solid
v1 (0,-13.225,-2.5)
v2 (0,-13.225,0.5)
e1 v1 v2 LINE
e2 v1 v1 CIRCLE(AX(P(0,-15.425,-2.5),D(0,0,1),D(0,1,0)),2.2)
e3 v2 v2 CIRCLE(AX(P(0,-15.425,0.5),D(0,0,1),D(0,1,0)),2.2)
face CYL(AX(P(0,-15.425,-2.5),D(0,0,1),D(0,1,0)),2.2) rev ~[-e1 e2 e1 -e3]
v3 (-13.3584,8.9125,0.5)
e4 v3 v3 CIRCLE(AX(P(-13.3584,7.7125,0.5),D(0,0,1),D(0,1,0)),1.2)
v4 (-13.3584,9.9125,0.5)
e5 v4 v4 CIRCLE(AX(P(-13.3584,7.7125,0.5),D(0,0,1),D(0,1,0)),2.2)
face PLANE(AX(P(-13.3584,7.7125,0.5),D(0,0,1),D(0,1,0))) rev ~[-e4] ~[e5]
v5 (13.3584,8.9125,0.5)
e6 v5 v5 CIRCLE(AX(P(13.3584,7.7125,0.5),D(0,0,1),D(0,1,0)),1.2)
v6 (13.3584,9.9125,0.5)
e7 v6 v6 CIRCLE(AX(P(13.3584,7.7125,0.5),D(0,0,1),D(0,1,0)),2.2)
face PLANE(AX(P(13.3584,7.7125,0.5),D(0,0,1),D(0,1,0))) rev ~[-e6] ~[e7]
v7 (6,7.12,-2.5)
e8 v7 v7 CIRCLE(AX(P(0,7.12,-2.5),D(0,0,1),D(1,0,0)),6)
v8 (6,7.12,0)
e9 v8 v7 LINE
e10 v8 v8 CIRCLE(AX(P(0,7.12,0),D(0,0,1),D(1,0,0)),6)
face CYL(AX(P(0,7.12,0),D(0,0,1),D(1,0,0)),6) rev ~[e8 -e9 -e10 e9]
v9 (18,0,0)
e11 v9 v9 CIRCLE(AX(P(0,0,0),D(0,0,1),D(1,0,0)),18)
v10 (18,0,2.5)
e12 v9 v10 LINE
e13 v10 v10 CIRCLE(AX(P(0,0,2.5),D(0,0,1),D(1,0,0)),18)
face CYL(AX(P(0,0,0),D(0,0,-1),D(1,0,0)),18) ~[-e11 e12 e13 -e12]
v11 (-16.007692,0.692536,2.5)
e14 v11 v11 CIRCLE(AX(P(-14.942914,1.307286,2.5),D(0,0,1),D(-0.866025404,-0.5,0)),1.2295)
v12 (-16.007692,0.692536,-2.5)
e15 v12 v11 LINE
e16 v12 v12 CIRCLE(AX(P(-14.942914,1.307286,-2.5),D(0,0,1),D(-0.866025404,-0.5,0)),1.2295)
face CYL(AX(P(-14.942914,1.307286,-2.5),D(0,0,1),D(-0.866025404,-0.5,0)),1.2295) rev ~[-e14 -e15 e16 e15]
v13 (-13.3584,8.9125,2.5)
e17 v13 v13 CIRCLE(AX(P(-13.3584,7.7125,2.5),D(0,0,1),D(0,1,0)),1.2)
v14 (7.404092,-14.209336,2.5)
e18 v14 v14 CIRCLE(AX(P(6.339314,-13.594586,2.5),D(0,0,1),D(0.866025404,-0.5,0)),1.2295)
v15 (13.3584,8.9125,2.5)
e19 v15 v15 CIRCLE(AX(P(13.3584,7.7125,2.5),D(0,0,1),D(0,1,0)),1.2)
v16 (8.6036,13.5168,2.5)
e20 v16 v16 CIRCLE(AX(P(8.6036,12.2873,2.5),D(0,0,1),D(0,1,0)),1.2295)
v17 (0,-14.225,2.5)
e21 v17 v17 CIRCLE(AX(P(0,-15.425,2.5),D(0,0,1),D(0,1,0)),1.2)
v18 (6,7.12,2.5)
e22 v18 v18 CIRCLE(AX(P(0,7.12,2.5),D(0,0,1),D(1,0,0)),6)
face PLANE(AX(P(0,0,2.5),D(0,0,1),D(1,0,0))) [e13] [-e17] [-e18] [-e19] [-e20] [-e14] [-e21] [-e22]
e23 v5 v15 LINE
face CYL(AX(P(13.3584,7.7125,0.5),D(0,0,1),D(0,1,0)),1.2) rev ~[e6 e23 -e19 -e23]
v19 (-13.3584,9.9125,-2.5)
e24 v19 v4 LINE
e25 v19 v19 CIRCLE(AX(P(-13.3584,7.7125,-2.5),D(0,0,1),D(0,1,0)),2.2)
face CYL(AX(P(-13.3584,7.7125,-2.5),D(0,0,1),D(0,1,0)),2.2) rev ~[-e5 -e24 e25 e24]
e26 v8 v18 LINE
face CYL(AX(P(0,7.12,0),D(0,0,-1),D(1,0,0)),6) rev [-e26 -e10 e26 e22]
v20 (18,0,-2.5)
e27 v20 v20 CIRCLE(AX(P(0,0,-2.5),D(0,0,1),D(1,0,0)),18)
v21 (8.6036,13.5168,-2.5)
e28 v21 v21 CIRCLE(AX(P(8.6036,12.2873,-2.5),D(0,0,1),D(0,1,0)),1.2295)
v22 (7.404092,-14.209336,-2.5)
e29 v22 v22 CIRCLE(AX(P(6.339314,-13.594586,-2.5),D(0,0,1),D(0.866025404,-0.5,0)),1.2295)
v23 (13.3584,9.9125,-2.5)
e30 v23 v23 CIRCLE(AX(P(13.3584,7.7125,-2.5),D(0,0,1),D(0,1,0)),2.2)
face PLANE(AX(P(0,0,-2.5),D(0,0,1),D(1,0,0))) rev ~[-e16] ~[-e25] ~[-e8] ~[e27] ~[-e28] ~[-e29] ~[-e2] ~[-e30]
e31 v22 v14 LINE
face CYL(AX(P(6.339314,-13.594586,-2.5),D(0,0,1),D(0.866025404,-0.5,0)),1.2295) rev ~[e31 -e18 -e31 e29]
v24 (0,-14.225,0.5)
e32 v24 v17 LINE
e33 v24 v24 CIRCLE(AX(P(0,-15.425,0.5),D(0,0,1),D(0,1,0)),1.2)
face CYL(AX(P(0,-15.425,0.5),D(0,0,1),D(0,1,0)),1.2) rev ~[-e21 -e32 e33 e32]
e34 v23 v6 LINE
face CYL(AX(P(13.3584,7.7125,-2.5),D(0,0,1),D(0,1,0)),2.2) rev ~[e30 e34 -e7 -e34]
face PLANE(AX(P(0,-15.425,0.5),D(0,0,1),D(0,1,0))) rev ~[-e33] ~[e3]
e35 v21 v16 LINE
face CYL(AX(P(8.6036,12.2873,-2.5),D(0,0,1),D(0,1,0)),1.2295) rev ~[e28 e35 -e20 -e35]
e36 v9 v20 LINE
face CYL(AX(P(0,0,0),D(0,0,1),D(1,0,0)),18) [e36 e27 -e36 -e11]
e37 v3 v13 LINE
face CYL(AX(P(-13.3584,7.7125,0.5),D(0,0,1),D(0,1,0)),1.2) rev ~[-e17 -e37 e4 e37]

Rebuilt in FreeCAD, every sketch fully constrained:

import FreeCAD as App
import Part
import Sketcher

doc = App.newDocument("Part")
params = doc.addObject("Spreadsheet::Sheet", "Params")
for row, (alias, value) in enumerate([
    ("sketch1_diameter", "36 mm"),
    ("sketch1_diameter2", "12 mm"),
    ("pad1_length", "5 mm"),
    ("sketch2_diameter", "2.4 mm"),
    ("hole_diameter", "2.4 mm"),
    ("hole_cbore_diameter", "4.4 mm"),
    ("hole_cbore_depth", "3 mm"),
    ("hole2_diameter", "2.459 mm"),
], start=1):
    params.set(f"A{row}", alias)
    params.set(f"B{row}", "=" + value)
    params.setAlias(f"B{row}", alias)

body = doc.addObject("PartDesign::Body", "Body")

# Sketch on XY plane
sketch1 = body.newObject("Sketcher::SketchObject", "Sketch")
sketch1.AttachmentSupport = (doc.getObject("XY_Plane"), [""])
sketch1.MapMode = "FlatFace"
sketch1.addGeometry(Part.Circle(App.Vector(0, 0, 0), App.Vector(0, 0, 1), 18), False)
sketch1.addGeometry(Part.Circle(App.Vector(0, 7, 0), App.Vector(0, 0, 1), 6), False)
sketch1.addConstraint(Sketcher.Constraint("Coincident", 0, 3, -1, 1))
sketch1.addConstraint(Sketcher.Constraint("PointOnObject", 1, 3, -2))
sketch1.addConstraint(Sketcher.Constraint("Diameter", 0, 36.0))
sketch1.addConstraint(Sketcher.Constraint("Diameter", 1, 12.0))
sketch1.addConstraint(Sketcher.Constraint("DistanceY", -1, 1, 1, 3, 7.12))
sketch1.setExpression("Constraints[2]", "Params.sketch1_diameter")
sketch1.setExpression("Constraints[3]", "Params.sketch1_diameter2")
pad1 = body.newObject("PartDesign::Pad", "Pad")
pad1.Profile = sketch1
pad1.setExpression("Length", "Params.pad1_length")
pad1.Midplane = True

# Sketch on XY plane
sketch2 = body.newObject("Sketcher::SketchObject", "Sketch001")
sketch2.AttachmentSupport = (doc.getObject("XY_Plane"), [""])
sketch2.MapMode = "FlatFace"
sketch2.AttachmentOffset = App.Placement(App.Vector(0, 0, -2.5), App.Rotation())
sketch2.addGeometry(Part.Circle(App.Vector(0, -15.4, 0), App.Vector(0, 0, 1), 1.2), False)
sketch2.addGeometry(Part.Circle(App.Vector(-13.4, 7.7, 0), App.Vector(0, 0, 1), 1.2), False)
sketch2.addGeometry(Part.Circle(App.Vector(13.4, 7.7, 0), App.Vector(0, 0, 1), 1.2), False)
sketch2.addConstraint(Sketcher.Constraint("Equal", 0, 1))
sketch2.addConstraint(Sketcher.Constraint("Equal", 1, 2))
sketch2.addConstraint(Sketcher.Constraint("Symmetric", 1, 3, 2, 3, -2))
sketch2.addConstraint(Sketcher.Constraint("PointOnObject", 0, 3, -2))
sketch2.addConstraint(Sketcher.Constraint("Diameter", 0, 2.4))
sketch2.addConstraint(Sketcher.Constraint("DistanceY", 0, 3, -1, 1, 15.425))
sketch2.addConstraint(Sketcher.Constraint("DistanceX", 1, 3, -1, 1, 13.3584))
sketch2.addConstraint(Sketcher.Constraint("DistanceY", -1, 1, 1, 3, 7.7125))
sketch2.setExpression("Constraints[4]", "Params.sketch2_diameter")
doc.recompute()
hole = body.newObject("PartDesign::Hole", "Hole")
hole.Profile = sketch2
hole.ThreadType = "None"
hole.setExpression("Diameter", "Params.hole_diameter")
hole.DepthType = "ThroughAll"
hole.HoleCutType = "Counterbore"
hole.setExpression("HoleCutDiameter", "Params.hole_cbore_diameter")
hole.setExpression("HoleCutDepth", "Params.hole_cbore_depth")
hole.Reversed = True

# Sketch on XY plane
sketch3 = body.newObject("Sketcher::SketchObject", "Sketch002")
sketch3.AttachmentSupport = (doc.getObject("XY_Plane"), [""])
sketch3.MapMode = "FlatFace"
sketch3.AttachmentOffset = App.Placement(App.Vector(0, 0, -2.5), App.Rotation())
sketch3.addGeometry(Part.Circle(App.Vector(8.6, 12.3, 0), App.Vector(0, 0, 1), 1.2), False)
sketch3.addConstraint(Sketcher.Constraint("Diameter", 0, 2.459))
sketch3.addConstraint(Sketcher.Constraint("DistanceX", -1, 1, 0, 3, 8.6036))
sketch3.addConstraint(Sketcher.Constraint("DistanceY", -1, 1, 0, 3, 12.2873))
doc.recompute()
hole2 = body.newObject("PartDesign::Hole", "Hole001")
hole2.Profile = sketch3
hole2.ThreadType = "None"
hole2.setExpression("Diameter", "Params.hole2_diameter")
hole2.DepthType = "ThroughAll"
hole2.Reversed = True
doc.recompute()

polarpattern = body.newObject("PartDesign::PolarPattern", "PolarPattern")
polarpattern.Originals = [hole2]
polarpattern.Axis = (doc.getObject("Z_Axis"), [""])
polarpattern.Angle = 360
polarpattern.Occurrences = 3
body.Tip = polarpattern

doc.recompute()
